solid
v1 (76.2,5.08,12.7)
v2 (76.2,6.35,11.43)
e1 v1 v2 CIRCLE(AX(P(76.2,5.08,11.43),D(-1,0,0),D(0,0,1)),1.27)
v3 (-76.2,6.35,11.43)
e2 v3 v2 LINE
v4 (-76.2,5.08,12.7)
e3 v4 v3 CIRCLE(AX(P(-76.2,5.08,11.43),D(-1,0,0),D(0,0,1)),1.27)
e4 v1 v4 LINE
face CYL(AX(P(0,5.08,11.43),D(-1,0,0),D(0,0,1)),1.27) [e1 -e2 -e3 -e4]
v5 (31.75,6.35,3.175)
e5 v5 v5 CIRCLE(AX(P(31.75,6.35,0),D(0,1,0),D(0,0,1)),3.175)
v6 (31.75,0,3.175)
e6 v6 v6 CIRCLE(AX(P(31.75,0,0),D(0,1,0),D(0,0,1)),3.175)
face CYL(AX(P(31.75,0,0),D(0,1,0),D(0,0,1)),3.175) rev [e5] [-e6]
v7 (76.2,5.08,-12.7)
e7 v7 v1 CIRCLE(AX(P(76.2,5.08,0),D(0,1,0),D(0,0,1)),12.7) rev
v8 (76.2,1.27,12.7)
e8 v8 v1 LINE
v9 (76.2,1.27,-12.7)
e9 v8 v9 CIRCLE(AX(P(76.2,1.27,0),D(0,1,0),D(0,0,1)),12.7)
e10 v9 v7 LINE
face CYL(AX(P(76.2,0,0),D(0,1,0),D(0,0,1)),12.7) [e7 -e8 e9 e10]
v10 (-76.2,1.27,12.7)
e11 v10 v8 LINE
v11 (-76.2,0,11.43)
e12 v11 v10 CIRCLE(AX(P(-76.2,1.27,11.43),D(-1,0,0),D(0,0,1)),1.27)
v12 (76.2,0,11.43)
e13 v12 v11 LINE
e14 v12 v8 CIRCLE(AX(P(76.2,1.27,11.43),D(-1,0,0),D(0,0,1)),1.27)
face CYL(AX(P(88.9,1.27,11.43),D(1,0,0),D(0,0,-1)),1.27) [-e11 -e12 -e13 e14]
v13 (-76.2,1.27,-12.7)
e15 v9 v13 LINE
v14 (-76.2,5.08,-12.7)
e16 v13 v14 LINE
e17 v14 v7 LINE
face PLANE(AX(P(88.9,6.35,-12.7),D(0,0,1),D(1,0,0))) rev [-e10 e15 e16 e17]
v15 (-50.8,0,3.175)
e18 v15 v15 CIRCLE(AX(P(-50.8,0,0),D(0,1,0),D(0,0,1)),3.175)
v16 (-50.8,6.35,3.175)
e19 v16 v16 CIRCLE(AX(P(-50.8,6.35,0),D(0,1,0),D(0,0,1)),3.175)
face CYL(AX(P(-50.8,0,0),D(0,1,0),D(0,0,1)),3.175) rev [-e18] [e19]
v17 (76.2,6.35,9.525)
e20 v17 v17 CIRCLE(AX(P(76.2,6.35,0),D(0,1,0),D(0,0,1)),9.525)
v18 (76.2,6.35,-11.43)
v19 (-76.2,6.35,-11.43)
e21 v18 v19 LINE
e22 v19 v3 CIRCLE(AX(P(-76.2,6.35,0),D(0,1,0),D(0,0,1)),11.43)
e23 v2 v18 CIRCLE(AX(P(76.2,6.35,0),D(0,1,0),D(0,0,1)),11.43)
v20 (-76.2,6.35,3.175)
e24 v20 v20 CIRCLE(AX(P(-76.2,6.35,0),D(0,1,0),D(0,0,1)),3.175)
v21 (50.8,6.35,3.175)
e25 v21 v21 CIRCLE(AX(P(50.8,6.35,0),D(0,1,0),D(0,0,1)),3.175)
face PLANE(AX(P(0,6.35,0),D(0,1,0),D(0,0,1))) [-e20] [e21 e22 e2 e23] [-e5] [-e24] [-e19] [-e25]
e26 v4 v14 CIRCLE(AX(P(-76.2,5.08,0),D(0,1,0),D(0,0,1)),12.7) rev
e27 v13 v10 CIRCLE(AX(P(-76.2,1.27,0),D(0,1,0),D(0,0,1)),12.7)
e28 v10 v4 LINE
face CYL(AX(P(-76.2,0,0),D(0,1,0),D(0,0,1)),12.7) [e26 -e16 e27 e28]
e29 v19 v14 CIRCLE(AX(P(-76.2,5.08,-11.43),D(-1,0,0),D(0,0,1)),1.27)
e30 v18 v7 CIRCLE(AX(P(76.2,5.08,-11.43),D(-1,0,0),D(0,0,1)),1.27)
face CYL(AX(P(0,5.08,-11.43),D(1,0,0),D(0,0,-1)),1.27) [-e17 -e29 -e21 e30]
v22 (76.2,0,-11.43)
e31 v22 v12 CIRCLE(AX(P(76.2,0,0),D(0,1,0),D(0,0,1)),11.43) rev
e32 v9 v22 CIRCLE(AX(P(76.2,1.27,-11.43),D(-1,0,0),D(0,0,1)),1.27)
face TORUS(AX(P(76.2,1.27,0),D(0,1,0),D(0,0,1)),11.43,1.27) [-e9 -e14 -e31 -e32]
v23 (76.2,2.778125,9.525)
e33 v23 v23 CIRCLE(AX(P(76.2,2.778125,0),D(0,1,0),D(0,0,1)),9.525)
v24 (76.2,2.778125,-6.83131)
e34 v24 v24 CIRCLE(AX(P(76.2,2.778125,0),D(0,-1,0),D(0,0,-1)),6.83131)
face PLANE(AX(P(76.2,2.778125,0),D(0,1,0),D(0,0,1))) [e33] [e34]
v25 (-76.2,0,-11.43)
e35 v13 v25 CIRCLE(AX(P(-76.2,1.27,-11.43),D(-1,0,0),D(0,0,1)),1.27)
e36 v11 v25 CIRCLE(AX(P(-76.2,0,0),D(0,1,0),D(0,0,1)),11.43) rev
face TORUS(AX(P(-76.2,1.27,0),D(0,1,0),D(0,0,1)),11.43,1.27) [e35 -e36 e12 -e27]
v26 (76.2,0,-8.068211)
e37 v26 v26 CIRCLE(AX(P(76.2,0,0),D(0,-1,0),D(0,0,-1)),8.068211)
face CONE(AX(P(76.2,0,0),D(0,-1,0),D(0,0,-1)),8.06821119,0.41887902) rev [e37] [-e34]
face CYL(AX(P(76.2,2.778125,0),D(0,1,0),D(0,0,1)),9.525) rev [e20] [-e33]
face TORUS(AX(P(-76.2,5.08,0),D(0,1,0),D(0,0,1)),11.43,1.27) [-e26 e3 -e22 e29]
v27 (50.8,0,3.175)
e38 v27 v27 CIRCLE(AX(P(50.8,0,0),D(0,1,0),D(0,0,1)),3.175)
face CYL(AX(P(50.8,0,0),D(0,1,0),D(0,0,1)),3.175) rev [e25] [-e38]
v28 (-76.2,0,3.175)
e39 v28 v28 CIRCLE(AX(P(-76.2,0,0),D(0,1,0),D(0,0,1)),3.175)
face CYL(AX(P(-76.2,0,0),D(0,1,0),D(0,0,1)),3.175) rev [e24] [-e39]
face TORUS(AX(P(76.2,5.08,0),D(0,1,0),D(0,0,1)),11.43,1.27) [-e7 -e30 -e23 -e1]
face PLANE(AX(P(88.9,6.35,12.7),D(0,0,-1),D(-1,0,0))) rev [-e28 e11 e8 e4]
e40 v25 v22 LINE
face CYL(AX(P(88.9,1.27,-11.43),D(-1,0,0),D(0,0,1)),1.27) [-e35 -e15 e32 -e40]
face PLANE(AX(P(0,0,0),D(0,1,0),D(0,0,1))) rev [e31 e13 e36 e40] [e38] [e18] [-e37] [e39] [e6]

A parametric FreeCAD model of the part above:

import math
import FreeCAD as App
import Part
import Sketcher
Q = App.Units.Quantity


def edges_at(feature, points):
    """Names of the edges that pass closest to the given points."""
    edges = feature.Shape.Edges
    near = lambda p: min(range(len(edges)), key=lambda i: edges[i].distToShape(Part.Vertex(*p))[0])
    return sorted({f"Edge{near(p) + 1}" for p in points})

doc = App.newDocument("Part")
body = doc.addObject("PartDesign::Body", "Body")

sketch1 = body.newObject("Sketcher::SketchObject", "Sketch")
sketch1.AttachmentSupport = (doc.getObject("XZ_Plane"), [""])
sketch1.MapMode = "FlatFace"
sketch1.addGeometry([
    Part.LineSegment(App.Vector(-89, -13, 0), App.Vector(-89, 13, 0)),
    Part.LineSegment(App.Vector(-89, 13, 0), App.Vector(89, 13, 0)),
    Part.LineSegment(App.Vector(89, 13, 0), App.Vector(89, -13, 0)),
    Part.LineSegment(App.Vector(89, -13, 0), App.Vector(-89, -13, 0)),
], False)
sketch1.addConstraint([
    Sketcher.Constraint("Coincident", 0, 2, 1, 1),
    Sketcher.Constraint("Coincident", 1, 2, 2, 1),
    Sketcher.Constraint("Coincident", 2, 2, 3, 1),
    Sketcher.Constraint("Coincident", 3, 2, 0, 1),
    Sketcher.Constraint("Vertical", 0),
    Sketcher.Constraint("Horizontal", 1),
    Sketcher.Constraint("Vertical", 2),
    Sketcher.Constraint("Horizontal", 3),
    Sketcher.Constraint("Symmetric", 0, 2, 2, 2, -1, 1),
    Sketcher.Constraint("DistanceX", 1, 1, 1, 2, Q("7 in")),
    Sketcher.Constraint("DistanceY", 0, 1, 0, 2, Q("1 in")),
])
pad1 = body.newObject("PartDesign::Pad", "Pad")
pad1.Profile = sketch1
pad1.Length = Q("0.25 in")
pad1.Reversed = True

sketch2 = body.newObject("Sketcher::SketchObject", "Sketch001")
sketch2.AttachmentSupport = (doc.getObject("XZ_Plane"), [""])
sketch2.MapMode = "FlatFace"
sketch2.AttachmentOffset = App.Placement(App.Vector(0, 0, -0.25 * 25.4), App.Rotation())
sketch2.addGeometry([
    Part.Circle(App.Vector(-76.2, 0, 0), App.Vector(0, 0, 1), 3.2),
    Part.Circle(App.Vector(76.2, 0, 0), App.Vector(0, 0, 1), 6.3),
    Part.Circle(App.Vector(-50.8, 0, 0), App.Vector(0, 0, 1), 3.2),
], False)
sketch2.addConstraint([
    Sketcher.Constraint("Equal", 0, 2),
    Sketcher.Constraint("Symmetric", 0, 3, 1, 3, -1, 1),
    Sketcher.Constraint("PointOnObject", 0, 3, -1),
    Sketcher.Constraint("PointOnObject", 2, 3, -1),
    Sketcher.Constraint("Diameter", 1, Q("0.5 in")),
    Sketcher.Constraint("Diameter", 0, Q("0.25 in")),
    Sketcher.Constraint("DistanceX", 0, 3, -1, 1, Q("3 in")),
    Sketcher.Constraint("DistanceX", 2, 3, -1, 1, Q("2 in")),
])
pocket1 = body.newObject("PartDesign::Pocket", "Pocket")
pocket1.Profile = sketch2
pocket1.Type = "ThroughAll"
pocket1.Reversed = True

sketch3 = body.newObject("Sketcher::SketchObject", "Sketch002")
sketch3.AttachmentSupport = (doc.getObject("XZ_Plane"), [""])
sketch3.MapMode = "FlatFace"
sketch3.AttachmentOffset = App.Placement(App.Vector(0, 0, -0.25 * 25.4), App.Rotation())
sketch3.addGeometry(Part.Circle(App.Vector(76, 0, 0), App.Vector(0, 0, 1), 10), False)
sketch3.addConstraint([
    Sketcher.Constraint("PointOnObject", 0, 3, -1),
    Sketcher.Constraint("Diameter", 0, Q("0.75 in")),
    Sketcher.Constraint("DistanceX", -1, 1, 0, 3, Q("3 in")),
])
pocket2 = body.newObject("PartDesign::Pocket", "Pocket001")
pocket2.Profile = sketch3
pocket2.Length = Q("0.140625 in")
pocket2.Reversed = True

sketch4 = body.newObject("Sketcher::SketchObject", "Sketch003")
sketch4.AttachmentSupport = (doc.getObject("XZ_Plane"), [""])
sketch4.MapMode = "FlatFace"
sketch4.AttachmentOffset = App.Placement(App.Vector(0, 0, -0.25 * 25.4), App.Rotation())
sketch4.addGeometry([
    Part.Circle(App.Vector(50.8, 0, 0), App.Vector(0, 0, 1), 3.2),
    Part.Circle(App.Vector(31.8, 0, 0), App.Vector(0, 0, 1), 3.2),
], False)
sketch4.addConstraint([
    Sketcher.Constraint("Equal", 0, 1),
    Sketcher.Constraint("PointOnObject", 0, 3, -1),
    Sketcher.Constraint("PointOnObject", 1, 3, -1),
    Sketcher.Constraint("Diameter", 0, Q("0.25 in")),
    Sketcher.Constraint("DistanceX", -1, 1, 0, 3, Q("2 in")),
    Sketcher.Constraint("DistanceX", -1, 1, 1, 3, Q("1.25 in")),
])
pocket3 = body.newObject("PartDesign::Pocket", "Pocket002")
pocket3.Profile = sketch4
pocket3.Type = "ThroughAll"
pocket3.Reversed = True

sketch5 = body.newObject("Sketcher::SketchObject", "Sketch004")
sketch5.AttachmentSupport = (doc.getObject("XZ_Plane"), [""])
sketch5.MapMode = "FlatFace"
sketch5.AttachmentOffset = App.Placement(App.Vector(0, 0, -0.25 * 25.4), App.Rotation())
sketch5.addGeometry([
    Part.LineSegment(App.Vector(89, -13, 0), App.Vector(76, -13, 0)),
    Part.ArcOfCircle(Part.Circle(App.Vector(76, 0, 0), App.Vector(0, 0, 1), 13), math.radians(-90), math.radians(0)),
    Part.LineSegment(App.Vector(89, 0, 0), App.Vector(89, -13, 0)),
    Part.ArcOfCircle(Part.Circle(App.Vector(76, 0, 0), App.Vector(0, 0, 1), 13), math.radians(0), math.radians(90)),
    Part.LineSegment(App.Vector(76, 13, 0), App.Vector(89, 13, 0)),
    Part.LineSegment(App.Vector(89, 13, 0), App.Vector(89, 0, 0)),
    Part.ArcOfCircle(Part.Circle(App.Vector(-76, 0, 0), App.Vector(0, 0, 1), 13), math.radians(180), math.radians(270)),
    Part.LineSegment(App.Vector(-76, -13, 0), App.Vector(-89, -13, 0)),
    Part.LineSegment(App.Vector(-89, -13, 0), App.Vector(-89, 0, 0)),
    Part.LineSegment(App.Vector(-89, 13, 0), App.Vector(-76, 13, 0)),
    Part.ArcOfCircle(Part.Circle(App.Vector(-76, 0, 0), App.Vector(0, 0, 1), 13), math.radians(90), math.radians(180)),
    Part.LineSegment(App.Vector(-89, 0, 0), App.Vector(-89, 13, 0)),
], False)
sketch5.addConstraint([
    Sketcher.Constraint("Tangent", 0, 2, 1, 1),
    Sketcher.Constraint("Tangent", 1, 2, 2, 1),
    Sketcher.Constraint("Coincident", 2, 2, 0, 1),
    Sketcher.Constraint("Tangent", 3, 2, 4, 1),
    Sketcher.Constraint("Coincident", 4, 2, 5, 1),
    Sketcher.Constraint("Tangent", 5, 2, 3, 1),
    Sketcher.Constraint("Tangent", 6, 2, 7, 1),
    Sketcher.Constraint("Coincident", 7, 2, 8, 1),
    Sketcher.Constraint("Tangent", 8, 2, 6, 1),
    Sketcher.Constraint("Tangent", 9, 2, 10, 1),
    Sketcher.Constraint("Tangent", 10, 2, 11, 1),
    Sketcher.Constraint("Coincident", 11, 2, 9, 1),
    Sketcher.Constraint("Horizontal", 0),
    Sketcher.Constraint("Vertical", 2),
    Sketcher.Constraint("Horizontal", 4),
    Sketcher.Constraint("Vertical", 5),
    Sketcher.Constraint("Horizontal", 7),
    Sketcher.Constraint("Vertical", 8),
    Sketcher.Constraint("Horizontal", 9),
    Sketcher.Constraint("Vertical", 11),
    Sketcher.Constraint("Coincident", 3, 3, 1, 3),
    Sketcher.Constraint("Coincident", 10, 3, 6, 3),
    Sketcher.Constraint("Equal", 1, 3),
    Sketcher.Constraint("Equal", 3, 6),
    Sketcher.Constraint("Equal", 6, 10),
    Sketcher.Constraint("Symmetric", 1, 3, 6, 3, -1, 1),
    Sketcher.Constraint("PointOnObject", 1, 3, -1),
    Sketcher.Constraint("Radius", 1, Q("0.5 in")),
    Sketcher.Constraint("DistanceX", -1, 1, 1, 3, Q("3 in")),
])
pocket4 = body.newObject("PartDesign::Pocket", "Pocket003")
pocket4.Profile = sketch5
pocket4.Type = "ThroughAll"
pocket4.Reversed = True
doc.recompute()

fillet = body.newObject("PartDesign::Fillet", "Fillet")
fillet.Base = (pocket4, edges_at(pocket4, [
    (0, 0, -12.7),
    (0, 0, 12.7),
    (0, 6.35, 12.7),
    (0, 6.35, -12.7),
    (85.18, 6.35, -8.98),
    (85.18, 0, -8.98),
    (-85.18, 6.35, -8.98),
    (-85.18, 0, -8.98),
]))
fillet.Radius = Q("0.05 in")

sketch6 = body.newObject("Sketcher::SketchObject", "Sketch005")
sketch6.AttachmentSupport = (doc.getObject("YZ_Plane"), [""])
sketch6.MapMode = "FlatFace"
sketch6.AttachmentOffset = App.Placement(App.Vector(0, 0, 3 * 25.4), App.Rotation())
sketch6.addGeometry([
    Part.LineSegment(App.Vector(0, -8.07, 0), App.Vector(0, -6.35, 0)),
    Part.LineSegment(App.Vector(0, -6.35, 0), App.Vector(2.78, -6.35, 0)),
    Part.LineSegment(App.Vector(2.78, -6.35, 0), App.Vector(2.78, -6.83, 0)),
    Part.LineSegment(App.Vector(2.78, -6.83, 0), App.Vector(0, -8.07, 0)),
], False)
sketch6.addConstraint([
    Sketcher.Constraint("Coincident", 0, 2, 1, 1),
    Sketcher.Constraint("Coincident", 1, 2, 2, 1),
    Sketcher.Constraint("Coincident", 2, 2, 3, 1),
    Sketcher.Constraint("Coincident", 3, 2, 0, 1),
    Sketcher.Constraint("Vertical", 0),
    Sketcher.Constraint("Horizontal", 1),
    Sketcher.Constraint("Vertical", 2),
    Sketcher.Constraint("PointOnObject", 0, 2, -2),
    Sketcher.Constraint("Angle", 3, Q("-156 deg")),
    Sketcher.Constraint("DistanceX", 1, 1, 1, 2, Q("0.109375 in")),
    Sketcher.Constraint("DistanceY", 0, 2, -1, 1, Q("0.25 in")),
    Sketcher.Constraint("DistanceY", 0, 1, 0, 2, Q("1.718211 mm")),
])
groove = body.newObject("PartDesign::Groove", "Groove")
groove.Profile = sketch6
groove.ReferenceAxis = (sketch6, ["H_Axis"])
groove.Angle = 360

doc.recompute()
